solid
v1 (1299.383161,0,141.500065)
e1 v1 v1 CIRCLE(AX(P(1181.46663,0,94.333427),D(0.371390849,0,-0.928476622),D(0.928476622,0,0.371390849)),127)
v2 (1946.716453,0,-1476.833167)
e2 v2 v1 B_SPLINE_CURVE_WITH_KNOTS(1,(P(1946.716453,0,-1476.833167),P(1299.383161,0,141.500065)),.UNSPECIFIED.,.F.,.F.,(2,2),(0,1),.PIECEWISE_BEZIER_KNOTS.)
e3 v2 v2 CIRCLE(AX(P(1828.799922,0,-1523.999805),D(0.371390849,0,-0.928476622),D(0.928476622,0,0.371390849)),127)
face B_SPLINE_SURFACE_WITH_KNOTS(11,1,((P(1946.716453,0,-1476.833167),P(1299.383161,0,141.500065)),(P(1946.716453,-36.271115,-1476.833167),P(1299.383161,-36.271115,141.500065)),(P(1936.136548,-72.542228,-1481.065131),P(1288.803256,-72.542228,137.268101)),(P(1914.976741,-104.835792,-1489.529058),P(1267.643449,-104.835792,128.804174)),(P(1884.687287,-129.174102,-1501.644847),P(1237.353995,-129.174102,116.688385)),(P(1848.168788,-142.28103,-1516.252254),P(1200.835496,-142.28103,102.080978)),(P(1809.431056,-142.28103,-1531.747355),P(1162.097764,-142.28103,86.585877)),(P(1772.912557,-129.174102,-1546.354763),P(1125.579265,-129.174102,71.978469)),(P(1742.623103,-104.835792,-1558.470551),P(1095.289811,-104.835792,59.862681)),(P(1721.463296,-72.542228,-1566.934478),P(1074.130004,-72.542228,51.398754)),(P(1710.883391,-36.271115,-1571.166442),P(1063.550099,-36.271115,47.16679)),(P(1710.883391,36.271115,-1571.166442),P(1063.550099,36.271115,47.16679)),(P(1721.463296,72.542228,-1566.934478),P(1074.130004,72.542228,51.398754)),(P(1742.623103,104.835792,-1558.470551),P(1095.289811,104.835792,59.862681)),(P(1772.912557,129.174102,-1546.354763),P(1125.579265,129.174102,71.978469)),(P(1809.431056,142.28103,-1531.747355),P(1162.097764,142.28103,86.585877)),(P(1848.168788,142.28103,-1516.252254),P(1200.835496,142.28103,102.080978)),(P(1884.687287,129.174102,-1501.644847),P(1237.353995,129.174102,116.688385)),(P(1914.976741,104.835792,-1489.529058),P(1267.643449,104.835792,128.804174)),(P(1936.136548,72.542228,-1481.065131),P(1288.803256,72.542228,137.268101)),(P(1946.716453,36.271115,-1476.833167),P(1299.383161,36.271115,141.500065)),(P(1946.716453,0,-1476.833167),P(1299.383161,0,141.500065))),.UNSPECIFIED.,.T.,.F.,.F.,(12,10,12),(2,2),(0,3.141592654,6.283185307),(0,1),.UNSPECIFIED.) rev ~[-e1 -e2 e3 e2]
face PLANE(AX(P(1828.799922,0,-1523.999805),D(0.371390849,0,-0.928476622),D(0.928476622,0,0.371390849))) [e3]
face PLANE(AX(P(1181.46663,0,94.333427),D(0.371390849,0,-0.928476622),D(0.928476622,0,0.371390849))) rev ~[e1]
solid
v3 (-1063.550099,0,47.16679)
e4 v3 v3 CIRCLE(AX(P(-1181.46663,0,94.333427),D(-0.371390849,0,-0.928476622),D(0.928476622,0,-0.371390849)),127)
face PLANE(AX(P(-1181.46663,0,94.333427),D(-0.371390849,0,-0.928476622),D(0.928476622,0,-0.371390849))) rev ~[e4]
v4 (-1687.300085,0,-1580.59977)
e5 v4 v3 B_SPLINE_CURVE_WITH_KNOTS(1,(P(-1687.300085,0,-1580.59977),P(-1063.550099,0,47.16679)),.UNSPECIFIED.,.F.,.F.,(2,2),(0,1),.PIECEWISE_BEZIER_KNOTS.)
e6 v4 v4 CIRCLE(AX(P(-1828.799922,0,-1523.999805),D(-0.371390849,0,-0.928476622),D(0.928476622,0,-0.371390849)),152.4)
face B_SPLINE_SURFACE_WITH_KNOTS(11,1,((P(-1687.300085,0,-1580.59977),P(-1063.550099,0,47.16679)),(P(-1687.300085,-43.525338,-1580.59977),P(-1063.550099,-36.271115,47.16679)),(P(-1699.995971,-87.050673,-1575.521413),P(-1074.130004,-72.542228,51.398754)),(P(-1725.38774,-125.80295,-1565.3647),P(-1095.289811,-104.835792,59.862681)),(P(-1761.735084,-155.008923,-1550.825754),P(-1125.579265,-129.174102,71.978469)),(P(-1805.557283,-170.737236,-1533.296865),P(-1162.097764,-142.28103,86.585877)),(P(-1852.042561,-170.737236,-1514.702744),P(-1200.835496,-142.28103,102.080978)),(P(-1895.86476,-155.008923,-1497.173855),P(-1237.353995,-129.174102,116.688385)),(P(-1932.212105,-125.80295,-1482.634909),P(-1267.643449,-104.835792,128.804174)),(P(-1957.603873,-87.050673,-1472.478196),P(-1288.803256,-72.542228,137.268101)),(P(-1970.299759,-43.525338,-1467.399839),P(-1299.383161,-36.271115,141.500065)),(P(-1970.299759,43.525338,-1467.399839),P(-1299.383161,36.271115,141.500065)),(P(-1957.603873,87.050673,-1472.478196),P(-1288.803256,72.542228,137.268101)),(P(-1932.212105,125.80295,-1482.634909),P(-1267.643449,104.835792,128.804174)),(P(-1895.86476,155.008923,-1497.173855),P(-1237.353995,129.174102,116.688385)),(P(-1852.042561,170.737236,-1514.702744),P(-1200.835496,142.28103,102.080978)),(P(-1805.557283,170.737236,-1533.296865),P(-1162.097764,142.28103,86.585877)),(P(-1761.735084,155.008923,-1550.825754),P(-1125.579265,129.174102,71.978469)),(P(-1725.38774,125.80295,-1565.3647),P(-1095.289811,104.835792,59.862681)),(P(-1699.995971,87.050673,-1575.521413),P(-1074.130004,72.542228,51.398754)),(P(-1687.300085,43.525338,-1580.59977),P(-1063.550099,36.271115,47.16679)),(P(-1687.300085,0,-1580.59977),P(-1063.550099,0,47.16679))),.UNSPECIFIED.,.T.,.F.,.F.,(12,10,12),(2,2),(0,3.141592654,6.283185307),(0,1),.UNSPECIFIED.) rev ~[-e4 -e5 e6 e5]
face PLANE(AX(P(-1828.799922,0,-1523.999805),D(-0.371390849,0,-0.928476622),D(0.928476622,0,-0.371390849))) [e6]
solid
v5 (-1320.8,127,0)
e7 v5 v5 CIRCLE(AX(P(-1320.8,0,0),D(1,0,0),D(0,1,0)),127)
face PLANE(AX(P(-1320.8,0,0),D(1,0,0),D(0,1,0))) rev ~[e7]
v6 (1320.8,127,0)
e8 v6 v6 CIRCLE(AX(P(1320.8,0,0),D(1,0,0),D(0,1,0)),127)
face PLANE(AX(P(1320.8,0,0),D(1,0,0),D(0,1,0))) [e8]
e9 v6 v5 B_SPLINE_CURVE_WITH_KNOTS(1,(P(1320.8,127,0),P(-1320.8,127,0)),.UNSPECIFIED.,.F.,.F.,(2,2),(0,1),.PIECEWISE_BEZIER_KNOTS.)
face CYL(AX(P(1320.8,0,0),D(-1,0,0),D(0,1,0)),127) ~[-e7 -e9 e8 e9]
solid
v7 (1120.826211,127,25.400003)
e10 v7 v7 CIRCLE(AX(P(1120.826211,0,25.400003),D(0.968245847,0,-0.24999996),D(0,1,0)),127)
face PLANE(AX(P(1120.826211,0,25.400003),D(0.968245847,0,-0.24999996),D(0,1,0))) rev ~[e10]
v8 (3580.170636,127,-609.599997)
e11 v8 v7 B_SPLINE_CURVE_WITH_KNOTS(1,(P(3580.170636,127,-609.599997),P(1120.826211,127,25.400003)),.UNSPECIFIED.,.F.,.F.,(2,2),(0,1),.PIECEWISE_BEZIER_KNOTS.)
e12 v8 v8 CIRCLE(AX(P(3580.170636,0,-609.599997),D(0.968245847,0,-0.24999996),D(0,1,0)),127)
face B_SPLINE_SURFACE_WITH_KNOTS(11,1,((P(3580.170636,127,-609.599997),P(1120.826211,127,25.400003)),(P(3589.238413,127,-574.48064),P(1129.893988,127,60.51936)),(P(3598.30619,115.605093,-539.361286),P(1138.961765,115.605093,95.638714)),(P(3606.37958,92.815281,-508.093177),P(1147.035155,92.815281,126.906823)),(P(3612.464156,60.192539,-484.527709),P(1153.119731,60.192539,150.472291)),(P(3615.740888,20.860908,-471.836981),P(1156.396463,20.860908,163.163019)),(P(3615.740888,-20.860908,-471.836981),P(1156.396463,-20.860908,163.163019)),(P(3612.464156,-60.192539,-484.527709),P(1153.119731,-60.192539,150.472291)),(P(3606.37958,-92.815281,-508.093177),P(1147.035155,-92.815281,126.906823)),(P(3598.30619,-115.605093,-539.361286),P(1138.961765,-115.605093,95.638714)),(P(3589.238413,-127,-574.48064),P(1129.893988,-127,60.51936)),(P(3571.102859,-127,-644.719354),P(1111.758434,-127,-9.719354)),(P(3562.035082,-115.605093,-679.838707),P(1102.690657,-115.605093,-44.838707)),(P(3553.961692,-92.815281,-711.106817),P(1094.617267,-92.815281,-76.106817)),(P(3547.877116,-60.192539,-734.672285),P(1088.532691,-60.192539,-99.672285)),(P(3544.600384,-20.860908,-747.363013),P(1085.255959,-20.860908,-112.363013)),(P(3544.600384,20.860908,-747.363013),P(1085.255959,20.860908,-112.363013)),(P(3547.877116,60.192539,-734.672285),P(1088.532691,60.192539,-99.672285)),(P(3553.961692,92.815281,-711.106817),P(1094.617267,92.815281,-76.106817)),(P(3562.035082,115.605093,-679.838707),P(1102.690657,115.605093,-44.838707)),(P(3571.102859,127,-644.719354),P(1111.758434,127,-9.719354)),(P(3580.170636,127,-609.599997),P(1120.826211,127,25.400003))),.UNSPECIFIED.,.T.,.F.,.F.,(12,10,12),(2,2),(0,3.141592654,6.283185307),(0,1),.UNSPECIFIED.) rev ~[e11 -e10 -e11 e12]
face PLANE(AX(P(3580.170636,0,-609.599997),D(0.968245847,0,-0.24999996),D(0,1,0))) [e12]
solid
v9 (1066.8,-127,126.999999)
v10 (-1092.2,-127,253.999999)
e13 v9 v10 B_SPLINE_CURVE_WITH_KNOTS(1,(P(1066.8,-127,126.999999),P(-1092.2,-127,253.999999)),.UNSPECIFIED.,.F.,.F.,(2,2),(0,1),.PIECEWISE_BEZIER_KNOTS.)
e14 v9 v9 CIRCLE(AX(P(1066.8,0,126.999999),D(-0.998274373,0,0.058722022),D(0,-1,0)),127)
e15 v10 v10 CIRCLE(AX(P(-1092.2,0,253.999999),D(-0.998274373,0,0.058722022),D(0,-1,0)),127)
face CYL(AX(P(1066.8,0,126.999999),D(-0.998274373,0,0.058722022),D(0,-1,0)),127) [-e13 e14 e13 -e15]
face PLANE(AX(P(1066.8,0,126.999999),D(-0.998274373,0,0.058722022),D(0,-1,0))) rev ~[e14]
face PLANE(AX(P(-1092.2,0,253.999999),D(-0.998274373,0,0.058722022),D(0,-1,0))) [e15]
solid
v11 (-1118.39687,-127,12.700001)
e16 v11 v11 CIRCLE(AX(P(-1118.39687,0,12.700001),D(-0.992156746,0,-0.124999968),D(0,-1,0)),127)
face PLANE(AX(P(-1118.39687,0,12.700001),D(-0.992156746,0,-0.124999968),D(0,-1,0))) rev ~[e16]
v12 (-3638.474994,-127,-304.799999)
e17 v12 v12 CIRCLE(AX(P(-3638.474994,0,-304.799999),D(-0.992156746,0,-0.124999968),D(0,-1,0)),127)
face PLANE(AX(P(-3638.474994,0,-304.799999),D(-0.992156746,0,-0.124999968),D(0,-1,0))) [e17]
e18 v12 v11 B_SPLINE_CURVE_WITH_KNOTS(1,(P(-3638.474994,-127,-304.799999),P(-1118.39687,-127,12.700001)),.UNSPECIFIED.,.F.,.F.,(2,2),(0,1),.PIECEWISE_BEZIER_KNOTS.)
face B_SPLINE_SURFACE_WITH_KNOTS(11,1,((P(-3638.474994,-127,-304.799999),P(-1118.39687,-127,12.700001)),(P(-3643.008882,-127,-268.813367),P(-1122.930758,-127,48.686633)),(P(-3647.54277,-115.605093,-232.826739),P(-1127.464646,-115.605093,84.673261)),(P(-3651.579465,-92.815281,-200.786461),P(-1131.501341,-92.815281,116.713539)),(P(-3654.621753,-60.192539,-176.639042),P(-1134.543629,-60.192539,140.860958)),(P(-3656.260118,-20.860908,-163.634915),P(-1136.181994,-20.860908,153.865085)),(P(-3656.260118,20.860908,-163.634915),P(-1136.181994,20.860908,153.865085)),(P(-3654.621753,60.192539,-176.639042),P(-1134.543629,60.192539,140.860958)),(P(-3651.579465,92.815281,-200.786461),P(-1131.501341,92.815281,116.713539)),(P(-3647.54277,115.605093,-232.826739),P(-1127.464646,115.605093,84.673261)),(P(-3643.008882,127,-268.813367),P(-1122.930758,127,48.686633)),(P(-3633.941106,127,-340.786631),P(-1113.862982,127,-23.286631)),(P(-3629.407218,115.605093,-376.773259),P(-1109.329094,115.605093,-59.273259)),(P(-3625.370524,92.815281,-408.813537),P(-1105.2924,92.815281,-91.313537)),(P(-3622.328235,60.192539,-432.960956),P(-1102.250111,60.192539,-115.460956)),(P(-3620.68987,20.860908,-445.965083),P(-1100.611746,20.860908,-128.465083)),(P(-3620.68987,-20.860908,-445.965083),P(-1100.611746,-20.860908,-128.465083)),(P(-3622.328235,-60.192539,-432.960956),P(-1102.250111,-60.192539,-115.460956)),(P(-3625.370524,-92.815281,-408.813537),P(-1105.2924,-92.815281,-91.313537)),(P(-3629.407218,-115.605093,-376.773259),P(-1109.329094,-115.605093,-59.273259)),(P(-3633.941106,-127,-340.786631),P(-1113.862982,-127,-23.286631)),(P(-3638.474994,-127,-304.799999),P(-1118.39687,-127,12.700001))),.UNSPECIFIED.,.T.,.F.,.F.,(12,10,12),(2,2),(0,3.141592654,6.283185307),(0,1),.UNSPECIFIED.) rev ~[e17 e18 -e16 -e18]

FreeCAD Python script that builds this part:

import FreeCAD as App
import Part
import Sketcher
Q = App.Units.Quantity

doc = App.newDocument("Part")
body = doc.addObject("PartDesign::Body", "Body")

# Sketch on an angled plane
sketch1 = body.newObject("Sketcher::SketchObject", "Sketch")
sketch1.Placement = App.Placement(App.Vector(-3619.424999, 0, -456.004687), App.Rotation(App.Vector(0, -1, 0), App.Vector(-0.124999968, 0, 0.992156746), App.Vector(-0.992156746, 0, -0.124999968), "ZXY"))
sketch1.addGeometry(Part.Circle(App.Vector(0, 152.4, 0), App.Vector(0, 0, 1), 127), False)
sketch1.addConstraint([
    Sketcher.Constraint("PointOnObject", 0, 3, -2),
    Sketcher.Constraint("Diameter", 0, Q("10 in")),
    Sketcher.Constraint("DistanceY", -1, 1, 0, 3, Q("6 in")),
])

# Sketch on an angled plane
sketch2 = body.newObject("Sketcher::SketchObject", "Sketch001")
sketch2.Placement = App.Placement(App.Vector(-1099.346875, 0, -138.504687), App.Rotation(App.Vector(0, -1, 0), App.Vector(-0.124999968, 0, 0.992156746), App.Vector(-0.992156746, 0, -0.124999968), "ZXY"))
sketch2.addGeometry(Part.Circle(App.Vector(0, 152.4, 0), App.Vector(0, 0, 1), 127), False)
sketch2.addConstraint([
    Sketcher.Constraint("PointOnObject", 0, 3, -2),
    Sketcher.Constraint("Diameter", 0, Q("10 in")),
    Sketcher.Constraint("DistanceY", -1, 1, 0, 3, Q("6 in")),
])

additiveloft = body.newObject("PartDesign::AdditiveLoft", "AdditiveLoft")
additiveloft.Profile = sketch1
additiveloft.Sections = [sketch2]
body2 = doc.addObject("PartDesign::Body", "Body001")

# Sketch on an angled plane
sketch3 = body2.newObject("Sketcher::SketchObject", "Sketch002")
sketch3.Placement = App.Placement(App.Vector(-777.765517, 0, -1944.413793), App.Rotation(App.Vector(0.928476622, 0, -0.371390849), App.Vector(0, -1, 0), App.Vector(-0.371390849, 0, -0.928476622), "ZXY"))
sketch3.addGeometry(Part.Circle(App.Vector(-1131.998782, 0, 0), App.Vector(0, 0, 1), 152.4), False)
sketch3.addConstraint([
    Sketcher.Constraint("PointOnObject", 0, 3, -1),
    Sketcher.Constraint("Diameter", 0, Q("12 in")),
    Sketcher.Constraint("DistanceX", 0, 3, -1, 1, Q("1131.998782 mm")),
])

# Sketch on an angled plane
sketch4 = body2.newObject("Sketcher::SketchObject", "Sketch003")
sketch4.Placement = App.Placement(App.Vector(-130.432225, 0, -326.080561), App.Rotation(App.Vector(0.928476622, 0, -0.371390849), App.Vector(0, -1, 0), App.Vector(-0.371390849, 0, -0.928476622), "ZXY"))
sketch4.addGeometry(Part.Circle(App.Vector(-1131.998782, 0, 0), App.Vector(0, 0, 1), 127), False)
sketch4.addConstraint([
    Sketcher.Constraint("PointOnObject", 0, 3, -1),
    Sketcher.Constraint("Diameter", 0, Q("10 in")),
    Sketcher.Constraint("DistanceX", 0, 3, -1, 1, Q("1131.998782 mm")),
])

additiveloft2 = body2.newObject("PartDesign::AdditiveLoft", "AdditiveLoft001")
additiveloft2.Profile = sketch3
additiveloft2.Sections = [sketch4]
body3 = doc.addObject("PartDesign::Body", "Body002")

# Sketch on YZ plane
sketch5 = body3.newObject("Sketcher::SketchObject", "Sketch004")
sketch5.AttachmentSupport = (doc.getObject("YZ_Plane002"), [""])
sketch5.MapMode = "FlatFace"
sketch5.AttachmentOffset = App.Placement(App.Vector(0, 0, 52 * 25.4), App.Rotation())
sketch5.addGeometry(Part.Circle(App.Vector(0, 0, 0), App.Vector(0, 0, 1), 127), False)
sketch5.addConstraint([
    Sketcher.Constraint("Coincident", 0, 3, -1, 1),
    Sketcher.Constraint("Diameter", 0, Q("10 in")),
])

# Sketch on YZ plane
sketch6 = body3.newObject("Sketcher::SketchObject", "Sketch005")
sketch6.AttachmentSupport = (doc.getObject("YZ_Plane002"), [""])
sketch6.MapMode = "FlatFace"
sketch6.AttachmentOffset = App.Placement(App.Vector(0, 0, -52 * 25.4), App.Rotation())
sketch6.addGeometry(Part.Circle(App.Vector(0, 0, 0), App.Vector(0, 0, 1), 127), False)
sketch6.addConstraint([
    Sketcher.Constraint("Coincident", 0, 3, -1, 1),
    Sketcher.Constraint("Diameter", 0, Q("10 in")),
])

additiveloft3 = body3.newObject("PartDesign::AdditiveLoft", "AdditiveLoft002")
additiveloft3.Profile = sketch5
additiveloft3.Sections = [sketch6]
body4 = doc.addObject("PartDesign::Body", "Body003")

# Sketch on an angled plane
sketch7 = body4.newObject("Sketcher::SketchObject", "Sketch006")
sketch7.Placement = App.Placement(App.Vector(3503.970648, 0, -904.721331), App.Rotation(App.Vector(0, 1, 0), App.Vector(0.24999996, 0, 0.968245847), App.Vector(0.968245847, 0, -0.24999996), "ZXY"))
sketch7.addGeometry(Part.Circle(App.Vector(0, 304.8, 0), App.Vector(0, 0, 1), 127), False)
sketch7.addConstraint([
    Sketcher.Constraint("PointOnObject", 0, 3, -2),
    Sketcher.Constraint("Diameter", 0, Q("10 in")),
    Sketcher.Constraint("DistanceY", -1, 1, 0, 3, Q("12 in")),
])

# Sketch on an angled plane
sketch8 = body4.newObject("Sketcher::SketchObject", "Sketch007")
sketch8.Placement = App.Placement(App.Vector(1044.626223, 0, -269.721331), App.Rotation(App.Vector(0, 1, 0), App.Vector(0.24999996, 0, 0.968245847), App.Vector(0.968245847, 0, -0.24999996), "ZXY"))
sketch8.addGeometry(Part.Circle(App.Vector(0, 304.8, 0), App.Vector(0, 0, 1), 127), False)
sketch8.addConstraint([
    Sketcher.Constraint("PointOnObject", 0, 3, -2),
    Sketcher.Constraint("Diameter", 0, Q("10 in")),
    Sketcher.Constraint("DistanceY", -1, 1, 0, 3, Q("12 in")),
])

additiveloft4 = body4.newObject("PartDesign::AdditiveLoft", "AdditiveLoft003")
additiveloft4.Profile = sketch7
additiveloft4.Sections = [sketch8]
body5 = doc.addObject("PartDesign::Body", "Body004")

# Sketch on an angled plane
sketch9 = body5.newObject("Sketcher::SketchObject", "Sketch008")
sketch9.Placement = App.Placement(App.Vector(777.765517, 0, -1944.413793), App.Rotation(App.Vector(0.928476622, 0, 0.371390849), App.Vector(0, -1, 0), App.Vector(0.371390849, 0, -0.928476622), "ZXY"))
sketch9.addGeometry(Part.Circle(App.Vector(1131.998782, 0, 0), App.Vector(0, 0, 1), 127), False)
sketch9.addConstraint([
    Sketcher.Constraint("PointOnObject", 0, 3, -1),
    Sketcher.Constraint("Diameter", 0, Q("10 in")),
    Sketcher.Constraint("DistanceX", -1, 1, 0, 3, Q("1131.998782 mm")),
])

# Sketch on an angled plane
sketch10 = body5.newObject("Sketcher::SketchObject", "Sketch009")
sketch10.Placement = App.Placement(App.Vector(130.432225, 0, -326.080561), App.Rotation(App.Vector(0.928476622, 0, 0.371390849), App.Vector(0, -1, 0), App.Vector(0.371390849, 0, -0.928476622), "ZXY"))
sketch10.addGeometry(Part.Circle(App.Vector(1131.998782, 0, 0), App.Vector(0, 0, 1), 127), False)
sketch10.addConstraint([
    Sketcher.Constraint("PointOnObject", 0, 3, -1),
    Sketcher.Constraint("Diameter", 0, Q("10 in")),
    Sketcher.Constraint("DistanceX", -1, 1, 0, 3, Q("1131.998782 mm")),
])

additiveloft5 = body5.newObject("PartDesign::AdditiveLoft", "AdditiveLoft004")
additiveloft5.Profile = sketch9
additiveloft5.Sections = [sketch10]
body6 = doc.addObject("PartDesign::Body", "Body005")

# Sketch on an angled plane
sketch11 = body6.newObject("Sketcher::SketchObject", "Sketch010")
sketch11.Placement = App.Placement(App.Vector(1055.676552, 0, -62.098621), App.Rotation(App.Vector(0, -1, 0), App.Vector(0.058722022, 0, 0.998274373), App.Vector(-0.998274373, 0, 0.058722022), "ZXY"))
sketch11.addGeometry(Part.Circle(App.Vector(0, 189.425498, 0), App.Vector(0, 0, 1), 127), False)
sketch11.addConstraint([
    Sketcher.Constraint("PointOnObject", 0, 3, -2),
    Sketcher.Constraint("Diameter", 0, Q("10 in")),
    Sketcher.Constraint("DistanceY", -1, 1, 0, 3, Q("189.425498 mm")),
])

# Sketch on an angled plane
sketch12 = body6.newObject("Sketcher::SketchObject", "Sketch011")
sketch12.Placement = App.Placement(App.Vector(-1103.323448, 0, 64.901379), App.Rotation(App.Vector(0, -1, 0), App.Vector(0.058722022, 0, 0.998274373), App.Vector(-0.998274373, 0, 0.058722022), "ZXY"))
sketch12.addGeometry(Part.Circle(App.Vector(0, 189.425498, 0), App.Vector(0, 0, 1), 127), False)
sketch12.addConstraint([
    Sketcher.Constraint("PointOnObject", 0, 3, -2),
    Sketcher.Constraint("Diameter", 0, Q("10 in")),
    Sketcher.Constraint("DistanceY", -1, 1, 0, 3, Q("189.425498 mm")),
])

additiveloft6 = body6.newObject("PartDesign::AdditiveLoft", "AdditiveLoft005")
additiveloft6.Profile = sketch11
additiveloft6.Sections = [sketch12]

doc.recompute()
